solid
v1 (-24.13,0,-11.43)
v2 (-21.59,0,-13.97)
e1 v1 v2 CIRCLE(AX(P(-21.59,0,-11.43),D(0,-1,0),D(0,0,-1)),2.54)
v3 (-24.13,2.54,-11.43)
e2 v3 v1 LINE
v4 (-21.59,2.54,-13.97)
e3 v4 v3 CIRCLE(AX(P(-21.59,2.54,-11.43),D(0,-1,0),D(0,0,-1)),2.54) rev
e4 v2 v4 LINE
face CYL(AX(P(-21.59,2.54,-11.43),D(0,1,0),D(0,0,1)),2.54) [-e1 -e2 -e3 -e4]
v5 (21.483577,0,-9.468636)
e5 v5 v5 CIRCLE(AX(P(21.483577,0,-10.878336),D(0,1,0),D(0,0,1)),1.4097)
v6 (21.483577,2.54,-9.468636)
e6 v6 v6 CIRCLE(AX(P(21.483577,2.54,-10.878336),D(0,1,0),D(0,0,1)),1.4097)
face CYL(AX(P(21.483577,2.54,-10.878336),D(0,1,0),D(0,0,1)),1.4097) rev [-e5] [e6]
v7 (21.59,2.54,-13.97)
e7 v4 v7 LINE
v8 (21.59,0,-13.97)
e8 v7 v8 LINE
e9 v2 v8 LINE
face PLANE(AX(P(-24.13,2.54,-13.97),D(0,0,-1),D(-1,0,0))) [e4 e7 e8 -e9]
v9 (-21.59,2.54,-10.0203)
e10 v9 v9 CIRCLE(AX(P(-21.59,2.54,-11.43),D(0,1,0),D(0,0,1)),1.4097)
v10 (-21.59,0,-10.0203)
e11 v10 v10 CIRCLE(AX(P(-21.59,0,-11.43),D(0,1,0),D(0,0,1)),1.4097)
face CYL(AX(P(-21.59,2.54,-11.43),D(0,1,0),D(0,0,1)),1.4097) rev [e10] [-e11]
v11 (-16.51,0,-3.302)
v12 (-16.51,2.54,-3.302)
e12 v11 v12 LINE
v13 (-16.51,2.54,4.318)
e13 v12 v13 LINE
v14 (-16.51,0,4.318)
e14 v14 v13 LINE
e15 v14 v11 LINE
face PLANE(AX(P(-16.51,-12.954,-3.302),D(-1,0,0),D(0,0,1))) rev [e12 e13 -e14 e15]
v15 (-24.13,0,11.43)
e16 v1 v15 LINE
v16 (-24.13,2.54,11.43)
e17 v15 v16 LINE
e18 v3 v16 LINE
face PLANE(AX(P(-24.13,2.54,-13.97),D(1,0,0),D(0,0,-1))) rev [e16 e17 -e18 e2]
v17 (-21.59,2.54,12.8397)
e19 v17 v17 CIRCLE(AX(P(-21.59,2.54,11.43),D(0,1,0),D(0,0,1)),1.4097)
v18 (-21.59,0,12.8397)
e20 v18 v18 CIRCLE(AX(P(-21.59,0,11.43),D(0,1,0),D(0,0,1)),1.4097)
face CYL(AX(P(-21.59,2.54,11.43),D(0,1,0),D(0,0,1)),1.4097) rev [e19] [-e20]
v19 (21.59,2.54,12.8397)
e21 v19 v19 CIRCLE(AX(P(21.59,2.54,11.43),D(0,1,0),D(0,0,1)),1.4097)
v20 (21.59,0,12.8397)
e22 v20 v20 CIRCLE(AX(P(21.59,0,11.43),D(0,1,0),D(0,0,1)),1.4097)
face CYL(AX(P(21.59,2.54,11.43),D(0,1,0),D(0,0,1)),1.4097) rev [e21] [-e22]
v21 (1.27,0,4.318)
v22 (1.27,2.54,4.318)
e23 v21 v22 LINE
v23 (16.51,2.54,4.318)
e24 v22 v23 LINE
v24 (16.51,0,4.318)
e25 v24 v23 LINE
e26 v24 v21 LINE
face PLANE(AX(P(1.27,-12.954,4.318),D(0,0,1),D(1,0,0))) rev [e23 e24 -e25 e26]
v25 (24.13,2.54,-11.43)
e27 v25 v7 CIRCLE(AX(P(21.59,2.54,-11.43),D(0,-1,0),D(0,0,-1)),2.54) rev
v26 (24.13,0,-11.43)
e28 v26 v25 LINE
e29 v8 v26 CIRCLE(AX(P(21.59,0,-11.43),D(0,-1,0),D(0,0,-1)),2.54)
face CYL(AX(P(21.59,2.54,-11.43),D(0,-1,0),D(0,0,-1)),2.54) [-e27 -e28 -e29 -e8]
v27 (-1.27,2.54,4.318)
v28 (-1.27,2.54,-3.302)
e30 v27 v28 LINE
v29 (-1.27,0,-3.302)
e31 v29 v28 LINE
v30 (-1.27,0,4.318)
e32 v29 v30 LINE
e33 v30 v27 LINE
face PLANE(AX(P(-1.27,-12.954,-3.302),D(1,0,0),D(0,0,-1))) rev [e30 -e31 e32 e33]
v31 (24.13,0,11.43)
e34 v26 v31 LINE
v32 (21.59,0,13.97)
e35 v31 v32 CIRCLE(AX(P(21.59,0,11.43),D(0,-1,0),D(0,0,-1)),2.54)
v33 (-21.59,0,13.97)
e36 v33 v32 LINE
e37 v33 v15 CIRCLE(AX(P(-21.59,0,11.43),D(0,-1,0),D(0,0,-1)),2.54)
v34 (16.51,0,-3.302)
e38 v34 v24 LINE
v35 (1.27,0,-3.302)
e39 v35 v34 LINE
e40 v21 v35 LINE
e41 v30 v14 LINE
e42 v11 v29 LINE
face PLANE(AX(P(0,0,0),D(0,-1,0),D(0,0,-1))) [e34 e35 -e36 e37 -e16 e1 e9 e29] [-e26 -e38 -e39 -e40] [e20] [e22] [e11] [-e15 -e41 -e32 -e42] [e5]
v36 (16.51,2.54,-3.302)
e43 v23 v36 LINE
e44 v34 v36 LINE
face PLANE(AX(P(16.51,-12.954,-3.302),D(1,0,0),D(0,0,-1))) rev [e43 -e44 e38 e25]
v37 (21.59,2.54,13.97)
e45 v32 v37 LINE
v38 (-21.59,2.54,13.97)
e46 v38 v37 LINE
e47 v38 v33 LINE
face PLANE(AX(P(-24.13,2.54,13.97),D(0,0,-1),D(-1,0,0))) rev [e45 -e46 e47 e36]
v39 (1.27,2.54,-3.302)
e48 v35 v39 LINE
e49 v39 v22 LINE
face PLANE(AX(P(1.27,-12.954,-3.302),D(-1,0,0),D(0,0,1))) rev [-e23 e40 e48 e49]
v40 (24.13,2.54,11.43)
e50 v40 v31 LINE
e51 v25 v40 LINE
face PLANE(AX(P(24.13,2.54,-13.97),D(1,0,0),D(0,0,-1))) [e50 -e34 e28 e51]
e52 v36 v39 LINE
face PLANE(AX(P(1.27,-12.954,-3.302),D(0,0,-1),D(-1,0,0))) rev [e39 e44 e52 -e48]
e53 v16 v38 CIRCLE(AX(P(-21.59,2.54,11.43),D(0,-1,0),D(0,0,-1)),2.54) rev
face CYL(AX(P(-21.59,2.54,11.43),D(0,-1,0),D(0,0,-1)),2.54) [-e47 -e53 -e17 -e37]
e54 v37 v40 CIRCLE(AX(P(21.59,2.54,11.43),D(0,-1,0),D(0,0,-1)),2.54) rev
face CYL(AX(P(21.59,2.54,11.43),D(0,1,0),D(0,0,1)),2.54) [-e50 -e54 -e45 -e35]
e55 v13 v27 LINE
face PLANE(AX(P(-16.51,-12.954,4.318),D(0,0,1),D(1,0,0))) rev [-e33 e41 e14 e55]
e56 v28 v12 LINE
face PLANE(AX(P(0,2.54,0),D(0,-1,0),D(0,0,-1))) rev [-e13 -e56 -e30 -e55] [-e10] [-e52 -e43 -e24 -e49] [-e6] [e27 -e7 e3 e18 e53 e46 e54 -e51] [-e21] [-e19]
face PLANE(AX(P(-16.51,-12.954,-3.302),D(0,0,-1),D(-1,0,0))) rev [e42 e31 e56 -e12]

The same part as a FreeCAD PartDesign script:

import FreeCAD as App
import Part
import Sketcher
from FreeCAD import Vector
Q = App.Units.Quantity


def edges_at(feature, points):
    """Names of the edges that pass closest to the given points."""
    edges = feature.Shape.Edges
    near = lambda p: min(range(len(edges)), key=lambda i: edges[i].distToShape(Part.Vertex(*p))[0])
    return sorted({f"Edge{near(p) + 1}" for p in points})


def add_polygon(sketch, points):
    """Adds a closed chain of lines whose ends are joined by coincident constraints."""
    first, n = sketch.GeometryCount, len(points)
    for a, b in zip(points, points[1:] + points[:1]):
        sketch.addGeometry(Part.LineSegment(App.Vector(*a, 0), App.Vector(*b, 0)), False)
    for i in range(n):
        sketch.addConstraint(Sketcher.Constraint("Coincident", first + i, 2, first + (i + 1) % n, 1))

doc = App.newDocument("Part")
body = doc.addObject("PartDesign::Body", "Body")

sketch1 = body.newObject("Sketcher::SketchObject", "Sketch")
sketch1.AttachmentSupport = (doc.getObject("XZ_Plane"), [""])
sketch1.MapMode = "FlatFace"
add_polygon(sketch1, [(-24, -14), (-24, 14), (24, 14), (24, -14)])
sketch1.addConstraint([
    Sketcher.Constraint("Vertical", 0),
    Sketcher.Constraint("Horizontal", 1),
    Sketcher.Constraint("Vertical", 2),
    Sketcher.Constraint("Horizontal", 3),
    Sketcher.Constraint("Symmetric", 0, 2, 2, 2, -1, 1),
    Sketcher.Constraint("DistanceX", 1, 1, 1, 2, Q("1.9 in")),
    Sketcher.Constraint("DistanceY", 0, 1, 0, 2, Q("1.1 in")),
])
pad1 = body.newObject("PartDesign::Pad", "Pad")
pad1.Profile = sketch1
pad1.Length = Q("0.1 in")
pad1.Reversed = True

sketch2 = body.newObject("Sketcher::SketchObject", "Sketch001")
sketch2.AttachmentSupport = (doc.getObject("XZ_Plane"), [""])
sketch2.MapMode = "FlatFace"
sketch2.AttachmentOffset = App.Placement(Vector(0, 0, -0.1 * 25.4), App.Rotation())
add_polygon(sketch2, [(-17, -3), (-17, 4), (-1, 4), (-1, -3)])
add_polygon(sketch2, [(1, -3), (1, 4), (17, 4), (17, -3)])
sketch2.addConstraint([
    Sketcher.Constraint("Vertical", 0),
    Sketcher.Constraint("Horizontal", 1),
    Sketcher.Constraint("Vertical", 2),
    Sketcher.Constraint("Horizontal", 3),
    Sketcher.Constraint("Vertical", 4),
    Sketcher.Constraint("Horizontal", 5),
    Sketcher.Constraint("Vertical", 6),
    Sketcher.Constraint("Horizontal", 7),
    Sketcher.Constraint("Symmetric", 1, 2, 4, 2, -2),
    Sketcher.Constraint("Symmetric", 3, 2, 6, 2, -2),
    Sketcher.Constraint("DistanceX", 1, 1, 1, 2, Q("0.6 in")),
    Sketcher.Constraint("DistanceY", 0, 1, 0, 2, Q("0.3 in")),
    Sketcher.Constraint("DistanceX", 1, 2, 4, 2, Q("0.1 in")),
    Sketcher.Constraint("DistanceY", -1, 1, 0, 2, Q("0.17 in")),
])
pocket1 = body.newObject("PartDesign::Pocket", "Pocket")
pocket1.Profile = sketch2
pocket1.Length = Q("0.61 in")
pocket1.Reversed = True
doc.recompute()

fillet = body.newObject("PartDesign::Fillet", "Fillet")
fillet.Base = (pocket1, edges_at(pocket1, [
    (-24.13, 1.27, 13.97),
    (-24.13, 1.27, -13.97),
    (24.13, 1.27, -13.97),
    (24.13, 1.27, 13.97),
]))
fillet.Radius = Q("0.1 in")

sketch3 = body.newObject("Sketcher::SketchObject", "Sketch002")
sketch3.AttachmentSupport = (doc.getObject("XZ_Plane"), [""])
sketch3.MapMode = "FlatFace"
sketch3.AttachmentOffset = App.Placement(Vector(0, 0, -0.1 * 25.4), App.Rotation())
sketch3.addGeometry([
    Part.Circle(Vector(21.5, -10.9, 0), Vector(0, 0, 1), 1.4),
    Part.Circle(Vector(21.6, 11.4, 0), Vector(0, 0, 1), 1.4),
    Part.Circle(Vector(-21.6, 11.4, 0), Vector(0, 0, 1), 1.4),
    Part.Circle(Vector(-21.6, -11.4, 0), Vector(0, 0, 1), 1.4),
], False)
sketch3.addConstraint([
    Sketcher.Constraint("Equal", 0, 1),
    Sketcher.Constraint("Equal", 1, 2),
    Sketcher.Constraint("Equal", 2, 3),
    Sketcher.Constraint("Symmetric", 1, 3, 3, 3, -1, 1),
    Sketcher.Constraint("Symmetric", 1, 3, 2, 3, -2),
    Sketcher.Constraint("Diameter", 0, Q("0.111 in")),
    Sketcher.Constraint("DistanceX", 2, 3, 1, 3, Q("1.7 in")),
    Sketcher.Constraint("DistanceY", 3, 3, 2, 3, Q("0.9 in")),
    Sketcher.Constraint("DistanceX", -1, 1, 0, 3, 21.483577),
    Sketcher.Constraint("DistanceY", 0, 3, -1, 1, 10.878336),
])
doc.recompute()
hole = body.newObject("PartDesign::Hole", "Hole")
hole.Profile = sketch3
hole.ThreadType = "None"
hole.Diameter = Q("0.111 in")
hole.DepthType = "ThroughAll"
hole.Reversed = True

doc.recompute()
